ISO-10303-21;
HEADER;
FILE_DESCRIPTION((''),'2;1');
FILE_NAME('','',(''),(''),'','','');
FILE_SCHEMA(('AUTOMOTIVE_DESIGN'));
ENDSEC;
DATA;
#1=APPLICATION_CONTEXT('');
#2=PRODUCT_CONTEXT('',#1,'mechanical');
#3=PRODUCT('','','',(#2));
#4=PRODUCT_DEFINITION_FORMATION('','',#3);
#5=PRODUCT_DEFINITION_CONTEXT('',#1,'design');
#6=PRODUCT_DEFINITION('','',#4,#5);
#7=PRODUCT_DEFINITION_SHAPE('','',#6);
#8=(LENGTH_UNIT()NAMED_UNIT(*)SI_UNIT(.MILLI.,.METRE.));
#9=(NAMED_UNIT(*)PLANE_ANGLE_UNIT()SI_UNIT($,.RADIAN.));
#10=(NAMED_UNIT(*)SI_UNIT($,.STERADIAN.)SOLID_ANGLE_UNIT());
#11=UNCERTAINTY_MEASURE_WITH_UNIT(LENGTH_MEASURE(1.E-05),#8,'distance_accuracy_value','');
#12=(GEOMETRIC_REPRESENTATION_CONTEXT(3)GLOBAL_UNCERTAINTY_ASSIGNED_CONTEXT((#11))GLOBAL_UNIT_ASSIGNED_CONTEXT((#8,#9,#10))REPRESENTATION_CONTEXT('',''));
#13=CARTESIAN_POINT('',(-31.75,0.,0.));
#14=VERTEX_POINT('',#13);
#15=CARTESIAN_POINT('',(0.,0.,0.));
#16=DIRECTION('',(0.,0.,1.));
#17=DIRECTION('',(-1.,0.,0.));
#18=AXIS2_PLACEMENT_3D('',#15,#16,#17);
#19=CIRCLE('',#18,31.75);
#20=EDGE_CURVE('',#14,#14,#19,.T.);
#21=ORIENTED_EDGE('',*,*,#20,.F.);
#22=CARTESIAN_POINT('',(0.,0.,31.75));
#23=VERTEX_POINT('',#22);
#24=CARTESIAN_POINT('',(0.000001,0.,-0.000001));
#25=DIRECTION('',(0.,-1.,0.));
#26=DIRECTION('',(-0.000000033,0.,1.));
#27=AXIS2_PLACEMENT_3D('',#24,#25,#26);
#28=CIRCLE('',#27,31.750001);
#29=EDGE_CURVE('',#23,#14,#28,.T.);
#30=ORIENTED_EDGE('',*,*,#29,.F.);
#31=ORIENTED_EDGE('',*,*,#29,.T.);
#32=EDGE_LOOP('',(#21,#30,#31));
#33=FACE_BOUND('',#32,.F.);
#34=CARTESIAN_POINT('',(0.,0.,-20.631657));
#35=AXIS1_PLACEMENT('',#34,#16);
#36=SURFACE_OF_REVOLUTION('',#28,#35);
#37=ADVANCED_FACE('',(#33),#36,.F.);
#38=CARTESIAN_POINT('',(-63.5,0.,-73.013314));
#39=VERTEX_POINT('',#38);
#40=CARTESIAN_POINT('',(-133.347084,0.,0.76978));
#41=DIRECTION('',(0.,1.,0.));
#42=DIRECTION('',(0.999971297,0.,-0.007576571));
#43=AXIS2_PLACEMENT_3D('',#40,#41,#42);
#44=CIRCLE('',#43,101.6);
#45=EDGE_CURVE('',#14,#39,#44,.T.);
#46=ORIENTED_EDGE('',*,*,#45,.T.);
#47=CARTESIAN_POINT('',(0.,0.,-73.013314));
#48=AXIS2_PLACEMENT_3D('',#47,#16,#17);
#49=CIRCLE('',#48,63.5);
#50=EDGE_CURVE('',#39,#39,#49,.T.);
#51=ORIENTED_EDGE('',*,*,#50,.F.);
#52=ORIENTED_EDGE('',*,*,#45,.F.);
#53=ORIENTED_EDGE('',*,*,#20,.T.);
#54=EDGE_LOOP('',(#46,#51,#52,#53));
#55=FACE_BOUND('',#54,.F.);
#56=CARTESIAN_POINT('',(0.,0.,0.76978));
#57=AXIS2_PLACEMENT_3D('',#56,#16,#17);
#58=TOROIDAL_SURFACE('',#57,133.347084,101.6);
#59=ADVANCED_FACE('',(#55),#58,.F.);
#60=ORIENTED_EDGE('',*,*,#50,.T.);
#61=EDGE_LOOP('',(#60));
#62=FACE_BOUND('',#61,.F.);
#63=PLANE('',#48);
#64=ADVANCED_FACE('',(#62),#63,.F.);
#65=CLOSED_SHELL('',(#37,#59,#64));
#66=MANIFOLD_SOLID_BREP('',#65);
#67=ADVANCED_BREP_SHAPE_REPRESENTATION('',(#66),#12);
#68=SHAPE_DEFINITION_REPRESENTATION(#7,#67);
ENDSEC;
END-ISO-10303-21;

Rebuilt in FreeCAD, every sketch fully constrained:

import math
import FreeCAD as App
import Part
import Sketcher
from FreeCAD import Vector
Q = App.Units.Quantity

doc = App.newDocument("Part")
body = doc.addObject("PartDesign::Body", "Body")

# Sketch on XZ plane
sketch1 = body.newObject("Sketcher::SketchObject", "Sketch")
sketch1.AttachmentSupport = (doc.getObject("XZ_Plane"), [""])
sketch1.MapMode = "FlatFace"
sketch1.addGeometry(Part.ArcOfCircle(Part.Circle(Vector(0, 0, 0), Vector(0, 0, 1), 32), math.radians(90), math.radians(180)), False)
sketch1.addGeometry(Part.ArcOfCircle(Part.Circle(Vector(-133, 1, 0), Vector(0, 0, 1), 102), math.radians(-47), math.radians(0)), False)
sketch1.addGeometry(Part.LineSegment(Vector(-64, -73, 0), Vector(0, -73, 0)), False)
sketch1.addGeometry(Part.LineSegment(Vector(0, -73, 0), Vector(0, 32, 0)), False)
sketch1.addConstraint(Sketcher.Constraint("Coincident", 0, 2, 1, 2))
sketch1.addConstraint(Sketcher.Constraint("Coincident", 1, 1, 2, 1))
sketch1.addConstraint(Sketcher.Constraint("Coincident", 2, 2, 3, 1))
sketch1.addConstraint(Sketcher.Constraint("Coincident", 3, 2, 0, 1))
sketch1.addConstraint(Sketcher.Constraint("Horizontal", 2))
sketch1.addConstraint(Sketcher.Constraint("Vertical", 3))
sketch1.addConstraint(Sketcher.Constraint("Coincident", 0, 3, -1, 1))
sketch1.addConstraint(Sketcher.Constraint("PointOnObject", 0, 2, -1))
sketch1.addConstraint(Sketcher.Constraint("PointOnObject", 2, 2, -2))
sketch1.addConstraint(Sketcher.Constraint("Radius", 1, Q("4 in")))
sketch1.addConstraint(Sketcher.Constraint("Radius", 0, Q("1.25 in")))
sketch1.addConstraint(Sketcher.Constraint("DistanceX", 2, 1, 2, 2, Q("2.5 in")))
sketch1.addConstraint(Sketcher.Constraint("DistanceY", 3, 1, 3, 2, Q("104.763314 mm")))
revolution = body.newObject("PartDesign::Revolution", "Revolution")
revolution.Profile = sketch1
revolution.ReferenceAxis = (sketch1, ["V_Axis"])
revolution.Angle = 360

doc.recompute()
